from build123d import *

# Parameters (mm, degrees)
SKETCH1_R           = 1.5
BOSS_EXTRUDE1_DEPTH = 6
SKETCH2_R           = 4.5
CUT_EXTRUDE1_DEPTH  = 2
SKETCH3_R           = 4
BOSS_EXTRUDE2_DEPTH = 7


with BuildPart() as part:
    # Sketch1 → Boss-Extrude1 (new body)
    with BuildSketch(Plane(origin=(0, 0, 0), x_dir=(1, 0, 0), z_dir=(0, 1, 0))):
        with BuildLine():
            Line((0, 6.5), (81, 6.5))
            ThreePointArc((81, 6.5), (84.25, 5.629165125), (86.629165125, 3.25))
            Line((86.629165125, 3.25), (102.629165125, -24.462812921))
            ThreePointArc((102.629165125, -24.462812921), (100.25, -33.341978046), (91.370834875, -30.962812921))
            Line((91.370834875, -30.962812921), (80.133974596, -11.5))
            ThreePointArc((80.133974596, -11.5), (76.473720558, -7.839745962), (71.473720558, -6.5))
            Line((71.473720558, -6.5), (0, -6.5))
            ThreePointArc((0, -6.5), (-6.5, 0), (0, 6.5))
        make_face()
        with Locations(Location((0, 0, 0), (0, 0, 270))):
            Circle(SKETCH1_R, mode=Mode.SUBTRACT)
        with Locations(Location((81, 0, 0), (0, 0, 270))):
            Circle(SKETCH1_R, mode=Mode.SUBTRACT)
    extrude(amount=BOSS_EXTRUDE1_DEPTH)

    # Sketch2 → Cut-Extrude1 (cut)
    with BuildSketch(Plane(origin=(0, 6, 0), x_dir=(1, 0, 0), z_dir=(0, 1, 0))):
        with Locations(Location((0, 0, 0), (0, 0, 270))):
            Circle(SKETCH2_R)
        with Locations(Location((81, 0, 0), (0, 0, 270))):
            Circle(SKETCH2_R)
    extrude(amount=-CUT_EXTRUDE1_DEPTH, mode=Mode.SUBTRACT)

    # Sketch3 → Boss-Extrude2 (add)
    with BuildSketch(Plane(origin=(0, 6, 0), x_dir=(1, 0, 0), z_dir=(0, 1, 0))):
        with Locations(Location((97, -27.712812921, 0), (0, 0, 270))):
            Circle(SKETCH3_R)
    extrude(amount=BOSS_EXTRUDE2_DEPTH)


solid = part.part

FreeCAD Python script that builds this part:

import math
import FreeCAD as App
import Part
import Sketcher

V = App.Vector
Q = App.Units.Quantity

doc = App.newDocument("Part")
body = doc.addObject("PartDesign::Body", "Body")

# Sketch on XZ plane
sketch1 = doc.addObject("Sketcher::SketchObject", "Sketch")
body.addObject(sketch1)
sketch1.AttachmentSupport = (doc.XZ_Plane, [""])
sketch1.MapMode = "FlatFace"
sketch1.addGeometry([
    Part.LineSegment(V(81, -6.5, 0), V(0, -6.5, 0)),  # 0
    Part.ArcOfCircle(Part.Circle(V(0, 0, 0), V(0, 0, 1), 6.5), math.radians(90), math.radians(270)),  # 1
    Part.LineSegment(V(0, 6.5, 0), V(71.473721, 6.5, 0)),  # 2
    Part.ArcOfCircle(Part.Circle(V(71.473721, 16.5, 0), V(0, 0, 1), 10), math.radians(-90), math.radians(-30)),  # 3
    Part.LineSegment(V(80.133975, 11.5, 0), V(91.370835, 30.962813, 0)),  # 4
    Part.ArcOfCircle(Part.Circle(V(97, 27.712813, 0), V(0, 0, 1), 6.5), math.radians(-30), math.radians(150)),  # 5
    Part.LineSegment(V(102.629165, 24.462813, 0), V(86.629165, -3.25, 0)),  # 6
    Part.ArcOfCircle(Part.Circle(V(81, 0, 0), V(0, 0, 1), 6.5), math.radians(-90), math.radians(-30)),  # 7
    Part.Circle(V(81, 0, 0), V(0, 0, 1), 1.5),  # 8
    Part.Circle(V(0, 0, 0), V(0, 0, 1), 1.5),  # 9
], False)
sketch1.addConstraint([
    Sketcher.Constraint("Tangent", 0, 2, 1, 2),
    Sketcher.Constraint("Tangent", 1, 1, 2, 1),
    Sketcher.Constraint("Tangent", 2, 2, 3, 1),
    Sketcher.Constraint("Tangent", 3, 2, 4, 1),
    Sketcher.Constraint("Tangent", 4, 2, 5, 2),
    Sketcher.Constraint("Tangent", 5, 1, 6, 1),
    Sketcher.Constraint("Tangent", 6, 2, 7, 2),
    Sketcher.Constraint("Tangent", 7, 1, 0, 1),
    Sketcher.Constraint("Horizontal", 0),
    Sketcher.Constraint("Horizontal", 2),
    Sketcher.Constraint("Coincident", 1, 3, -1, 1),
    Sketcher.Constraint("Coincident", 9, 3, -1, 1),
    Sketcher.Constraint("Coincident", 8, 3, 7, 3),
    Sketcher.Constraint("Equal", 1, 5),
    Sketcher.Constraint("Equal", 5, 7),
    Sketcher.Constraint("Equal", 8, 9),
    Sketcher.Constraint("Parallel", 4, 6),
    Sketcher.Constraint("Diameter", 8, 3.0),
    Sketcher.Constraint("Radius", 3, 10.0),
    Sketcher.Constraint("Radius", 1, 6.5),
    Sketcher.Constraint("DistanceX", 0, 2, 0, 1, 81.0),
    Sketcher.Constraint("Angle", 4, Q("60 deg")),
    Sketcher.Constraint("Distance", 6, 32.0),
])
pad1 = doc.addObject("PartDesign::Pad", "Pad")
body.addObject(pad1)
pad1.Profile = sketch1
pad1.Length = 6
pad1.Reversed = True

# Sketch on XZ plane
sketch2 = doc.addObject("Sketcher::SketchObject", "Sketch001")
body.addObject(sketch2)
sketch2.AttachmentSupport = (doc.XZ_Plane, [""])
sketch2.MapMode = "FlatFace"
sketch2.AttachmentOffset = App.Placement(V(0, 0, -6), App.Rotation())
sketch2.addGeometry([
    Part.Circle(V(0, 0, 0), V(0, 0, 1), 4.5),
    Part.Circle(V(81, 0, 0), V(0, 0, 1), 4.5),
], False)
sketch2.addConstraint([
    Sketcher.Constraint("Coincident", 0, 3, -1, 1),
    Sketcher.Constraint("Equal", 0, 1),
    Sketcher.Constraint("PointOnObject", 1, 3, -1),
    Sketcher.Constraint("Diameter", 0, 9.0),
    Sketcher.Constraint("DistanceX", -1, 1, 1, 3, 81.0),
])
pocket1 = doc.addObject("PartDesign::Pocket", "Pocket")
body.addObject(pocket1)
pocket1.Profile = sketch2
pocket1.Length = 2
pocket1.Reversed = True

# Sketch on XZ plane
sketch3 = doc.addObject("Sketcher::SketchObject", "Sketch002")
body.addObject(sketch3)
sketch3.AttachmentSupport = (doc.XZ_Plane, [""])
sketch3.MapMode = "FlatFace"
sketch3.AttachmentOffset = App.Placement(V(0, 0, -6), App.Rotation())
sketch3.addGeometry(Part.Circle(V(97, 27.712813, 0), V(0, 0, 1), 4), False)
sketch3.addConstraint([
    Sketcher.Constraint("Diameter", 0, 8.0),
    Sketcher.Constraint("DistanceX", -1, 1, 0, 3, 97.0),
    Sketcher.Constraint("DistanceY", -1, 1, 0, 3, 27.712813),
])
pad2 = doc.addObject("PartDesign::Pad", "Pad001")
body.addObject(pad2)
pad2.Profile = sketch3
pad2.Length = 7
pad2.Reversed = True

doc.recompute()
